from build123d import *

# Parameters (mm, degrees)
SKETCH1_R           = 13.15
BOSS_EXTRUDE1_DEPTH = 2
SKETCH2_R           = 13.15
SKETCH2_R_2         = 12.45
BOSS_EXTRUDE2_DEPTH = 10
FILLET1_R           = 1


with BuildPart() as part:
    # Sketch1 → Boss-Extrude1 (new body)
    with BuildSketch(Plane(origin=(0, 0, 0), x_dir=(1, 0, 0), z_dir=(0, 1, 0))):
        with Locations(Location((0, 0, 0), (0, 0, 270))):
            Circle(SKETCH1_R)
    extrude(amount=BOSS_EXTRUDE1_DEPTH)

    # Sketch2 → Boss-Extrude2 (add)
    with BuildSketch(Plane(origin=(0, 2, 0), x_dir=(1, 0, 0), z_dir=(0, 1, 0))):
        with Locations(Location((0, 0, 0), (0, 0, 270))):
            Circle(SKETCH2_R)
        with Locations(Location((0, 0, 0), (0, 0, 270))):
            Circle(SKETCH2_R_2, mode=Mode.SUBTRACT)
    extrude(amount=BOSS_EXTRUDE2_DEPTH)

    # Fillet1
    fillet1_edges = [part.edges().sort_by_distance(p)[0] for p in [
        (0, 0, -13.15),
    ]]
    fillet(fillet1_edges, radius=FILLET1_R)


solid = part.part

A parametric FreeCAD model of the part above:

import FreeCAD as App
import Part
import Sketcher
from FreeCAD import Vector
Q = App.Units.Quantity


def edges_at(feature, points):
    """Names of the edges that pass closest to the given points."""
    edges = feature.Shape.Edges
    near = lambda p: min(range(len(edges)), key=lambda i: edges[i].distToShape(Part.Vertex(*p))[0])
    return sorted({f"Edge{near(p) + 1}" for p in points})

doc = App.newDocument("Part")
params = doc.addObject("Spreadsheet::Sheet", "Params")
for row, (alias, value) in enumerate([
    ("sketch1_diameter", "26.3 mm"),
    ("pad1_length", "2 mm"),
    ("sketch2_diameter", "26.3 mm"),
    ("sketch2_diameter2", "24.9 mm"),
    ("pad2_length", "10 mm"),
    ("fillet_radius", "1 mm"),
], start=1):
    params.set(f"A{row}", alias)
    params.set(f"B{row}", "=" + value)
    params.setAlias(f"B{row}", alias)

body = doc.addObject("PartDesign::Body", "Body")

sketch1 = body.newObject("Sketcher::SketchObject", "Sketch")
sketch1.AttachmentSupport = (doc.getObject("XZ_Plane"), [""])
sketch1.MapMode = "FlatFace"
sketch1.addGeometry(Part.Circle(Vector(0, 0, 0), Vector(0, 0, 1), 13.15), False)
sketch1.addConstraint(Sketcher.Constraint("Coincident", 0, 3, -1, 1))
sketch1.addConstraint(Sketcher.Constraint("Diameter", 0, Q("26.3 mm")))
sketch1.setExpression("Constraints[1]", "Params.sketch1_diameter")
pad1 = body.newObject("PartDesign::Pad", "Pad")
pad1.Profile = sketch1
pad1.setExpression("Length", "Params.pad1_length")
pad1.Reversed = True

sketch2 = body.newObject("Sketcher::SketchObject", "Sketch001")
sketch2.AttachmentSupport = (doc.getObject("XZ_Plane"), [""])
sketch2.MapMode = "FlatFace"
sketch2.AttachmentOffset = App.Placement(Vector(0, 0, -2), App.Rotation())
sketch2.addGeometry(Part.Circle(Vector(0, 0, 0), Vector(0, 0, 1), 13.15), False)
sketch2.addGeometry(Part.Circle(Vector(0, 0, 0), Vector(0, 0, 1), 12.45), False)
sketch2.addConstraint(Sketcher.Constraint("Coincident", 0, 3, -1, 1))
sketch2.addConstraint(Sketcher.Constraint("Coincident", 1, 3, -1, 1))
sketch2.addConstraint(Sketcher.Constraint("Diameter", 0, Q("26.3 mm")))
sketch2.addConstraint(Sketcher.Constraint("Diameter", 1, Q("24.9 mm")))
sketch2.setExpression("Constraints[2]", "Params.sketch2_diameter")
sketch2.setExpression("Constraints[3]", "Params.sketch2_diameter2")
pad2 = body.newObject("PartDesign::Pad", "Pad001")
pad2.Profile = sketch2
pad2.setExpression("Length", "Params.pad2_length")
pad2.Reversed = True
doc.recompute()

fillet = body.newObject("PartDesign::Fillet", "Fillet")
fillet.Base = (pad2, edges_at(pad2, [(0, 0, -13.15)]))
fillet.setExpression("Radius", "Params.fillet_radius")

doc.recompute()
